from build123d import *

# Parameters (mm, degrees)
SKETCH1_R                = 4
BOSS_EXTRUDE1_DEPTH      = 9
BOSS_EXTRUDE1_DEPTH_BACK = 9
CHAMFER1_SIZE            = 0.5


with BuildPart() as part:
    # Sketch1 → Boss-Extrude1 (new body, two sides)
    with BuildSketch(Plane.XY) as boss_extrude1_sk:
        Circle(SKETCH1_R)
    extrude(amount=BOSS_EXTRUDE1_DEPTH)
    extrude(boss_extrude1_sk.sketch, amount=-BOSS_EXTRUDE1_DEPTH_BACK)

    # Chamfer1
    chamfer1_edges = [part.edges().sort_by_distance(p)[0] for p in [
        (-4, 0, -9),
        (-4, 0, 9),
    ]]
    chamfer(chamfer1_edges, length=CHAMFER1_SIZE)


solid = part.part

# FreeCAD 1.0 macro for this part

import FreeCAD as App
import Part
import Sketcher

V = App.Vector


def edges_at(feature, points):
    """Names of the edges that pass closest to the given points."""
    edges = feature.Shape.Edges
    near = lambda p: min(range(len(edges)), key=lambda i: edges[i].distToShape(Part.Vertex(*p))[0])
    return sorted({f"Edge{near(p) + 1}" for p in points})

doc = App.newDocument("Part")
body = doc.addObject("PartDesign::Body", "Body")

# Sketch on XY plane
sketch1 = doc.addObject("Sketcher::SketchObject", "Sketch")
body.addObject(sketch1)
sketch1.AttachmentSupport = (doc.XY_Plane, [""])
sketch1.MapMode = "FlatFace"
sketch1.addGeometry(Part.Circle(V(0, 0, 0), V(0, 0, 1), 4), False)
sketch1.addConstraint(Sketcher.Constraint("Coincident", 0, 3, -1, 1))
sketch1.addConstraint(Sketcher.Constraint("Diameter", 0, 8.0))
pad1 = doc.addObject("PartDesign::Pad", "Pad")
body.addObject(pad1)
pad1.Profile = sketch1
pad1.Type = "TwoLengths"
pad1.Length = 9
pad1.Length2 = 9
doc.recompute()

chamfer = doc.addObject("PartDesign::Chamfer", "Chamfer")
body.addObject(chamfer)
chamfer.Base = (pad1, edges_at(pad1, [(-4, 0, -9), (-4, 0, 9)]))
chamfer.Size = 0.5

doc.recompute()
